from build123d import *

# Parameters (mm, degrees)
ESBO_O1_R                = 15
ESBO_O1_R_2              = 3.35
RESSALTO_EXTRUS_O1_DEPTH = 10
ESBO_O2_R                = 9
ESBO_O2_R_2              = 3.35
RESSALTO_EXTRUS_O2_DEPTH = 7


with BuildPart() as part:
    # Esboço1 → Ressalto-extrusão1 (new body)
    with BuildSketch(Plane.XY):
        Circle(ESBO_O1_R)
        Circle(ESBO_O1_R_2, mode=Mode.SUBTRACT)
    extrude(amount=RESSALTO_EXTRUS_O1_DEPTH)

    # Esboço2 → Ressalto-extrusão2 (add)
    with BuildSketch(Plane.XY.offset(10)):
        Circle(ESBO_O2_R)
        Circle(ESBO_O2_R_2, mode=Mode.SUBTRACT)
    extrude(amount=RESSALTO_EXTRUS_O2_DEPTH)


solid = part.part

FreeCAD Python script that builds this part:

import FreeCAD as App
import Part
import Sketcher
from FreeCAD import Vector
Q = App.Units.Quantity

doc = App.newDocument("Part")
params = doc.addObject("Spreadsheet::Sheet", "Params")
for row, (alias, value) in enumerate([
    ("sketch1_diameter", "30 mm"),
    ("sketch1_diameter2", "6.7 mm"),
    ("pad1_length", "10 mm"),
    ("sketch2_diameter", "18 mm"),
    ("sketch2_diameter2", "6.7 mm"),
    ("pad2_length", "7 mm"),
], start=1):
    params.set(f"A{row}", alias)
    params.set(f"B{row}", "=" + value)
    params.setAlias(f"B{row}", alias)

body = doc.addObject("PartDesign::Body", "Body")

# Sketch on XY plane
sketch1 = doc.addObject("Sketcher::SketchObject", "Sketch")
body.addObject(sketch1)
sketch1.AttachmentSupport = (doc.XY_Plane, [""])
sketch1.MapMode = "FlatFace"
sketch1.addGeometry(Part.Circle(Vector(0, 0, 0), Vector(0, 0, 1), 15), False)
sketch1.addGeometry(Part.Circle(Vector(0, 0, 0), Vector(0, 0, 1), 3.4), False)
sketch1.addConstraint(Sketcher.Constraint("Coincident", 0, 3, -1, 1))
sketch1.addConstraint(Sketcher.Constraint("Coincident", 1, 3, -1, 1))
sketch1.addConstraint(Sketcher.Constraint("Diameter", 0, Q("30 mm")))
sketch1.addConstraint(Sketcher.Constraint("Diameter", 1, Q("6.7 mm")))
sketch1.setExpression("Constraints[2]", "Params.sketch1_diameter")
sketch1.setExpression("Constraints[3]", "Params.sketch1_diameter2")
pad1 = doc.addObject("PartDesign::Pad", "Pad")
body.addObject(pad1)
pad1.Profile = sketch1
pad1.setExpression("Length", "Params.pad1_length")

# Sketch on XY plane
sketch2 = doc.addObject("Sketcher::SketchObject", "Sketch001")
body.addObject(sketch2)
sketch2.AttachmentSupport = (doc.XY_Plane, [""])
sketch2.MapMode = "FlatFace"
sketch2.AttachmentOffset = App.Placement(Vector(0, 0, 10), App.Rotation())
sketch2.addGeometry(Part.Circle(Vector(0, 0, 0), Vector(0, 0, 1), 9), False)
sketch2.addGeometry(Part.Circle(Vector(0, 0, 0), Vector(0, 0, 1), 3.4), False)
sketch2.addConstraint(Sketcher.Constraint("Coincident", 0, 3, -1, 1))
sketch2.addConstraint(Sketcher.Constraint("Coincident", 1, 3, -1, 1))
sketch2.addConstraint(Sketcher.Constraint("Diameter", 0, Q("18 mm")))
sketch2.addConstraint(Sketcher.Constraint("Diameter", 1, Q("6.7 mm")))
sketch2.setExpression("Constraints[2]", "Params.sketch2_diameter")
sketch2.setExpression("Constraints[3]", "Params.sketch2_diameter2")
pad2 = doc.addObject("PartDesign::Pad", "Pad001")
body.addObject(pad2)
pad2.Profile = sketch2
pad2.setExpression("Length", "Params.pad2_length")

doc.recompute()
